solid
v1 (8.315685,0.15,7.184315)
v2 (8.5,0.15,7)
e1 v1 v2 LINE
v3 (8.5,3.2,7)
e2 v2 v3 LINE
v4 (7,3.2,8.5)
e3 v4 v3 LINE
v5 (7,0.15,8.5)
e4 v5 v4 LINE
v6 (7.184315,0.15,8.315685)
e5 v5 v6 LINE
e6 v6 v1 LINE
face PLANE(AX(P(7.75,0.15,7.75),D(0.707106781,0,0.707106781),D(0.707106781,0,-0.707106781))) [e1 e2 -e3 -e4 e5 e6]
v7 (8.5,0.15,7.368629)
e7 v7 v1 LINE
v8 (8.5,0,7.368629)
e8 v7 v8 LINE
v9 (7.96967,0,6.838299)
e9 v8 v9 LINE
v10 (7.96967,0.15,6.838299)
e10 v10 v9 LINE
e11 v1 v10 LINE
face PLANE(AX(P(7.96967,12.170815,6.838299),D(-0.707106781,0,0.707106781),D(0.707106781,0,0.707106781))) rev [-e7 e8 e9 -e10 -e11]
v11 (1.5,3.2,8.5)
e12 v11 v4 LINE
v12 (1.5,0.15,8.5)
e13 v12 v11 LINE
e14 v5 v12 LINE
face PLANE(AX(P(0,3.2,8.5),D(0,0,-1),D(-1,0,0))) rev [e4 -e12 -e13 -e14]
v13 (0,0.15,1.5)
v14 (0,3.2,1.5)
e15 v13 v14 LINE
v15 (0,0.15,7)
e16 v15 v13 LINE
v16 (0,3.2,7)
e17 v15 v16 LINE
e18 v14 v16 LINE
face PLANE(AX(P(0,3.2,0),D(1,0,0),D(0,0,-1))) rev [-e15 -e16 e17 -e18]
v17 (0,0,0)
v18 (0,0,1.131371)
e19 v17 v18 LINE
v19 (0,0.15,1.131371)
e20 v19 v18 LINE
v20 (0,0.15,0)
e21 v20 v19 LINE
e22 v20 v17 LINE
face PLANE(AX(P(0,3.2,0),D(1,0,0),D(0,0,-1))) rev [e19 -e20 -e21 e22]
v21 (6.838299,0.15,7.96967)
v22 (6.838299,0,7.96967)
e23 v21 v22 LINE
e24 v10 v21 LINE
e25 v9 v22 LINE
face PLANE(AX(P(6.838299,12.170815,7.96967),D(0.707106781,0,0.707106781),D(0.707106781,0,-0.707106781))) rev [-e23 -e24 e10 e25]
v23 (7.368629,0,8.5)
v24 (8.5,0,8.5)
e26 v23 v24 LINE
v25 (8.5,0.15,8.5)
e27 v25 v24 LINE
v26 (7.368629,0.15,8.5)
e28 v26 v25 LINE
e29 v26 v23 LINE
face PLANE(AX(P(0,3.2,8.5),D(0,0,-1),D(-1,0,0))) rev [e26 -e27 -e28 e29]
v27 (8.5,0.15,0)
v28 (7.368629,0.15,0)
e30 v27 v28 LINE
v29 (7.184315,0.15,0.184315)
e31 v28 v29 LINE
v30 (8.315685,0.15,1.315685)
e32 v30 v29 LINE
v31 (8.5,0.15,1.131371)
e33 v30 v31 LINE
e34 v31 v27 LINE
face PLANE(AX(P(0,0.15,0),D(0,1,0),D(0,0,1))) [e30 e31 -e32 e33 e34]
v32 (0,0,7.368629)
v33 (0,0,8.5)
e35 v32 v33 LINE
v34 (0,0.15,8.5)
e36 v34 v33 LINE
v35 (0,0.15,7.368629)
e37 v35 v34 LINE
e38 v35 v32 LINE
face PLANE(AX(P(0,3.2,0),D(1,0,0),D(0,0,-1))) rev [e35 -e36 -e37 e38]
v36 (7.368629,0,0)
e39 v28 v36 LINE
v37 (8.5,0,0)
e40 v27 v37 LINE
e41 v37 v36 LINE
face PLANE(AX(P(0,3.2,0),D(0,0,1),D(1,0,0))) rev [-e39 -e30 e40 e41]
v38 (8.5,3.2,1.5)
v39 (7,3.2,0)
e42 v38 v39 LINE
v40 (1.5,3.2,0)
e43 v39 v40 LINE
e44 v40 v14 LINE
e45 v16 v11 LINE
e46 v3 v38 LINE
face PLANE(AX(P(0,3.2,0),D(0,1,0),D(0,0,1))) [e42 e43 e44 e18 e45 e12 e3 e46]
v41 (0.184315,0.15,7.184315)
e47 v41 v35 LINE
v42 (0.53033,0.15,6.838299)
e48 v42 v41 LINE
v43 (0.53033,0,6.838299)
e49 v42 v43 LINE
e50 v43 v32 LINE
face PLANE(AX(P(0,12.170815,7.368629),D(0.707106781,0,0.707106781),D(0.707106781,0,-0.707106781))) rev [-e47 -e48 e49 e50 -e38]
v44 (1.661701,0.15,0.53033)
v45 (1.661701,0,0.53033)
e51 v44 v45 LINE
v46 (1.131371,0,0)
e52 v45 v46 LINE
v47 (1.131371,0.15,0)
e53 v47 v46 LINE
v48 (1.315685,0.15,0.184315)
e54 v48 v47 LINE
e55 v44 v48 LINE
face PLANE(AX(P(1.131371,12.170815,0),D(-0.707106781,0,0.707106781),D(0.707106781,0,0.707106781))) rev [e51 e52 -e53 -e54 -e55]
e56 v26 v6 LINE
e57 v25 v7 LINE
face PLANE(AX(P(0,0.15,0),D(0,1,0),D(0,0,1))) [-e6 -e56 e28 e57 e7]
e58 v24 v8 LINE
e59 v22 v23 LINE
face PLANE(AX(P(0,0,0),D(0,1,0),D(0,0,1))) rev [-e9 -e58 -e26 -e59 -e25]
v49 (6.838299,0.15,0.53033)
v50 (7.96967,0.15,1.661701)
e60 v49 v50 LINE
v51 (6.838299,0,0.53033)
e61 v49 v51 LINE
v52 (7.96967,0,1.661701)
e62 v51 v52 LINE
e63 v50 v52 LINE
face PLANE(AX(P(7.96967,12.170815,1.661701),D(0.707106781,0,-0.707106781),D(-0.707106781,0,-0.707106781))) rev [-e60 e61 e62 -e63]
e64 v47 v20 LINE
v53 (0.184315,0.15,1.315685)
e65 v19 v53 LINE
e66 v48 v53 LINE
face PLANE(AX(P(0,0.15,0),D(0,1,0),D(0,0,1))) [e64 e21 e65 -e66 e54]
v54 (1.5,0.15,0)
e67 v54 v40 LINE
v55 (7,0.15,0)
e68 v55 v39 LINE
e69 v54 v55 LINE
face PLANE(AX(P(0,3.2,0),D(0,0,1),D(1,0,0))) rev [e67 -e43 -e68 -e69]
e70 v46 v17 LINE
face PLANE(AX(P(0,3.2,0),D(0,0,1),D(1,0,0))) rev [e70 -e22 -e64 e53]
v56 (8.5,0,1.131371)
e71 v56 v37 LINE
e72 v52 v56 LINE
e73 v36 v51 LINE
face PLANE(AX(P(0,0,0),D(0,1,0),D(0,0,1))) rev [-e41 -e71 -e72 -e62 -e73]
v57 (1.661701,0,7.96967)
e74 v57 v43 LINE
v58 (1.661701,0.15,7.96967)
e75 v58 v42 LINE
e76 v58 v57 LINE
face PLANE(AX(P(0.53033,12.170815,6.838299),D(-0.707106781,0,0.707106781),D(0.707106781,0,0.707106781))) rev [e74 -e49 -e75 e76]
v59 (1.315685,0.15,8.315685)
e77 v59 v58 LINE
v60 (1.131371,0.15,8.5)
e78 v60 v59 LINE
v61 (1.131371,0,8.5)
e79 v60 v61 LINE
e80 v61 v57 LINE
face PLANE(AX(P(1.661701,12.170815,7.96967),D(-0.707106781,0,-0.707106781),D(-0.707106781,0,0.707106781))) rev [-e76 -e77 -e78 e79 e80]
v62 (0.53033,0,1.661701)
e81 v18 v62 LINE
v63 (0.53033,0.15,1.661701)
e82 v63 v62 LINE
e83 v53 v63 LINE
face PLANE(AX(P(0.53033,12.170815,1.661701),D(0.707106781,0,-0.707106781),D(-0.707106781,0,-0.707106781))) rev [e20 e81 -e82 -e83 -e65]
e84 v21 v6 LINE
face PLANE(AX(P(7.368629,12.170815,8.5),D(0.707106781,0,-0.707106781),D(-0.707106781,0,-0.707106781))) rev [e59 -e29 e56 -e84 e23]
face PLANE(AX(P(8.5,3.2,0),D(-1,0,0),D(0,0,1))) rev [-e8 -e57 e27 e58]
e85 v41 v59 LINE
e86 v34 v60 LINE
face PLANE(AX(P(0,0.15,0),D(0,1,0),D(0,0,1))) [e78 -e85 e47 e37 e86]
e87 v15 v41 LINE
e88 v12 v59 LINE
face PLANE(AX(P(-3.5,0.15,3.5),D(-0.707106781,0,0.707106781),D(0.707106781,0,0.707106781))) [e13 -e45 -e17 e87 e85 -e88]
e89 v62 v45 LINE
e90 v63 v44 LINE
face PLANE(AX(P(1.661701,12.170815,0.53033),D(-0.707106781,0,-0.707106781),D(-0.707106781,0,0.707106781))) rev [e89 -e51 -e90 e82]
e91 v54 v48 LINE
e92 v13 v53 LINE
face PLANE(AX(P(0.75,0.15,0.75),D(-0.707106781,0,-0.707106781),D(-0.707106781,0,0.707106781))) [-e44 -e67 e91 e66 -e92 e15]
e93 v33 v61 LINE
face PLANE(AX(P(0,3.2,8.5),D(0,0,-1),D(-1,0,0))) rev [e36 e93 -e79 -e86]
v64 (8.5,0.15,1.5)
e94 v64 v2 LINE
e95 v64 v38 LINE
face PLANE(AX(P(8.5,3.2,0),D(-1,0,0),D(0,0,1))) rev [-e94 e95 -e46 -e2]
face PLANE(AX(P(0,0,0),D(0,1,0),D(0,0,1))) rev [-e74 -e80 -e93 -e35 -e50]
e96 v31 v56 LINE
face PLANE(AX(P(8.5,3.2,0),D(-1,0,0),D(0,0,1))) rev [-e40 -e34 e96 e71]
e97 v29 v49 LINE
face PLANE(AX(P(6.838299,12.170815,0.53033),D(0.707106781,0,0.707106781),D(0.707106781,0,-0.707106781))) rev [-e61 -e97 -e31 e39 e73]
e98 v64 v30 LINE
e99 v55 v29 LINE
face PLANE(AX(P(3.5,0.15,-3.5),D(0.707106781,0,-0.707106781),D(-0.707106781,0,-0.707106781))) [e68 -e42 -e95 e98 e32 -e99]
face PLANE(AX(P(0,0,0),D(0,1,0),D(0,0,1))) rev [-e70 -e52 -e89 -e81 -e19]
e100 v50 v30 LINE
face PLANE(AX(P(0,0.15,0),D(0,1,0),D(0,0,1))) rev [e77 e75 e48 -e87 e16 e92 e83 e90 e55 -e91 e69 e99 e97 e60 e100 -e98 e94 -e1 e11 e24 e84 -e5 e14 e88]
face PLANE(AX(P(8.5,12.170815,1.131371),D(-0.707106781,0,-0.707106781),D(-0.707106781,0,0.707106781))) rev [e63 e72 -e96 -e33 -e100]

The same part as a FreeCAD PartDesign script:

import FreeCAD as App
import Part
import Sketcher
from FreeCAD import Vector


def add_polygon(sketch, points):
    """Adds a closed chain of lines whose ends are joined by coincident constraints."""
    first, n = sketch.GeometryCount, len(points)
    for a, b in zip(points, points[1:] + points[:1]):
        sketch.addGeometry(Part.LineSegment(App.Vector(*a, 0), App.Vector(*b, 0)), False)
    for i in range(n):
        sketch.addConstraint(Sketcher.Constraint("Coincident", first + i, 2, first + (i + 1) % n, 1))

doc = App.newDocument("Part")
body = doc.addObject("PartDesign::Body", "Body")

sketch1 = body.newObject("Sketcher::SketchObject", "Sketch")
sketch1.AttachmentSupport = (doc.getObject("XZ_Plane"), [""])
sketch1.MapMode = "FlatFace"
add_polygon(sketch1, [(0, 0), (0, 8), (8, 8), (8, 0)])
sketch1.addConstraint([
    Sketcher.Constraint("Vertical", 0),
    Sketcher.Constraint("Horizontal", 1),
    Sketcher.Constraint("Vertical", 2),
    Sketcher.Constraint("Horizontal", 3),
    Sketcher.Constraint("Coincident", 3, 2, -1, 1),
    Sketcher.Constraint("Equal", 3, 0),
    Sketcher.Constraint("DistanceX", 1, 1, 1, 2, 8.5),
])
pad1 = body.newObject("PartDesign::Pad", "Pad")
pad1.Profile = sketch1
pad1.Length = 3.2
pad1.Reversed = True

sketch2 = body.newObject("Sketcher::SketchObject", "Sketch001")
sketch2.AttachmentSupport = (doc.getObject("XZ_Plane"), [""])
sketch2.MapMode = "FlatFace"
sketch2.AttachmentOffset = App.Placement(Vector(0, 0, -3.2), App.Rotation())
add_polygon(sketch2, [(1.5, 8.5), (0, 7), (0, 8.5)])
add_polygon(sketch2, [(0, 1.5), (1.5, 0), (0, 0)])
add_polygon(sketch2, [(8.5, 0), (7, 0), (8.5, 1.5)])
add_polygon(sketch2, [(8.5, 8.5), (8.5, 7), (7, 8.5)])
sketch2.addConstraint([
    Sketcher.Constraint("Vertical", 1),
    Sketcher.Constraint("Horizontal", 2),
    Sketcher.Constraint("Horizontal", 4),
    Sketcher.Constraint("Vertical", 5),
    Sketcher.Constraint("Horizontal", 6),
    Sketcher.Constraint("Vertical", 8),
    Sketcher.Constraint("Vertical", 9),
    Sketcher.Constraint("Horizontal", 11),
    Sketcher.Constraint("Coincident", 4, 2, -1, 1),
    Sketcher.Constraint("PointOnObject", 0, 2, -2),
    Sketcher.Constraint("PointOnObject", 6, 2, -1),
    Sketcher.Constraint("Perpendicular", 0, 3),
    Sketcher.Constraint("Perpendicular", 3, 7),
    Sketcher.Constraint("Perpendicular", 7, 10),
    Sketcher.Constraint("Horizontal", 5, 2, 7, 2),
    Sketcher.Constraint("Horizontal", 0, 2, 9, 2),
    Sketcher.Constraint("Horizontal", 2, 2, 10, 2),
    Sketcher.Constraint("Vertical", 2, 2, 3, 2),
    Sketcher.Constraint("Vertical", 8, 2, 9, 2),
    Sketcher.Constraint("Vertical", 6, 2, 10, 2),
    Sketcher.Constraint("DistanceX", 2, 1, 2, 2, 1.5),
    Sketcher.Constraint("DistanceY", -1, 1, 0, 2, 7.0),
    Sketcher.Constraint("DistanceX", -1, 1, 6, 2, 7.0),
])
pocket1 = body.newObject("PartDesign::Pocket", "Pocket")
pocket1.Profile = sketch2
pocket1.Length = 3.05
pocket1.Reversed = True

sketch3 = body.newObject("Sketcher::SketchObject", "Sketch002")
sketch3.AttachmentSupport = (doc.getObject("XZ_Plane"), [""])
sketch3.MapMode = "FlatFace"
add_polygon(sketch3, [(8, 1.7), (8.5, 1.1), (8.5, 7.4), (8, 6.8), (6.8, 8), (7.4, 8.5), (1.1, 8.5), (1.7, 8), (0.5, 6.8), (0, 7.4), (0, 1.1), (0.5, 1.7), (1.7, 0.5), (1.1, 0), (7.4, 0), (6.8, 0.5)])
sketch3.addConstraint([
    Sketcher.Constraint("Vertical", 1),
    Sketcher.Constraint("Horizontal", 5),
    Sketcher.Constraint("Vertical", 9),
    Sketcher.Constraint("Horizontal", 13),
    Sketcher.Constraint("PointOnObject", 8, 2, -2),
    Sketcher.Constraint("PointOnObject", 12, 2, -1),
    Sketcher.Constraint("Perpendicular", 0, 2),
    Sketcher.Constraint("Perpendicular", 2, 3),
    Sketcher.Constraint("Perpendicular", 3, 4),
    Sketcher.Constraint("Perpendicular", 4, 6),
    Sketcher.Constraint("Perpendicular", 6, 7),
    Sketcher.Constraint("Perpendicular", 7, 8),
    Sketcher.Constraint("Perpendicular", 8, 10),
    Sketcher.Constraint("Perpendicular", 10, 11),
    Sketcher.Constraint("Perpendicular", 11, 12),
    Sketcher.Constraint("Perpendicular", 12, 14),
    Sketcher.Constraint("Perpendicular", 14, 15),
    Sketcher.Constraint("Horizontal", 3, 2, 6, 2),
    Sketcher.Constraint("Horizontal", 2, 2, 7, 2),
    Sketcher.Constraint("Horizontal", 1, 2, 8, 2),
    Sketcher.Constraint("Horizontal", 0, 2, 9, 2),
    Sketcher.Constraint("Horizontal", 11, 2, 14, 2),
    Sketcher.Constraint("Horizontal", 10, 2, 15, 2),
    Sketcher.Constraint("Vertical", 7, 2, 10, 2),
    Sketcher.Constraint("Vertical", 6, 2, 11, 2),
    Sketcher.Constraint("Vertical", 5, 2, 12, 2),
    Sketcher.Constraint("Vertical", 4, 2, 13, 2),
    Sketcher.Constraint("Equal", 13, 1),
    Sketcher.Constraint("Equal", 2, 4),
    Sketcher.Constraint("Distance", 3, 1.6),
    Sketcher.Constraint("DistanceX", -1, 1, 0, 2, 8.5),
    Sketcher.Constraint("Distance", 0, 0.75),
])
pocket2 = body.newObject("PartDesign::Pocket", "Pocket001")
pocket2.Profile = sketch3
pocket2.Length = 0.15

doc.recompute()
